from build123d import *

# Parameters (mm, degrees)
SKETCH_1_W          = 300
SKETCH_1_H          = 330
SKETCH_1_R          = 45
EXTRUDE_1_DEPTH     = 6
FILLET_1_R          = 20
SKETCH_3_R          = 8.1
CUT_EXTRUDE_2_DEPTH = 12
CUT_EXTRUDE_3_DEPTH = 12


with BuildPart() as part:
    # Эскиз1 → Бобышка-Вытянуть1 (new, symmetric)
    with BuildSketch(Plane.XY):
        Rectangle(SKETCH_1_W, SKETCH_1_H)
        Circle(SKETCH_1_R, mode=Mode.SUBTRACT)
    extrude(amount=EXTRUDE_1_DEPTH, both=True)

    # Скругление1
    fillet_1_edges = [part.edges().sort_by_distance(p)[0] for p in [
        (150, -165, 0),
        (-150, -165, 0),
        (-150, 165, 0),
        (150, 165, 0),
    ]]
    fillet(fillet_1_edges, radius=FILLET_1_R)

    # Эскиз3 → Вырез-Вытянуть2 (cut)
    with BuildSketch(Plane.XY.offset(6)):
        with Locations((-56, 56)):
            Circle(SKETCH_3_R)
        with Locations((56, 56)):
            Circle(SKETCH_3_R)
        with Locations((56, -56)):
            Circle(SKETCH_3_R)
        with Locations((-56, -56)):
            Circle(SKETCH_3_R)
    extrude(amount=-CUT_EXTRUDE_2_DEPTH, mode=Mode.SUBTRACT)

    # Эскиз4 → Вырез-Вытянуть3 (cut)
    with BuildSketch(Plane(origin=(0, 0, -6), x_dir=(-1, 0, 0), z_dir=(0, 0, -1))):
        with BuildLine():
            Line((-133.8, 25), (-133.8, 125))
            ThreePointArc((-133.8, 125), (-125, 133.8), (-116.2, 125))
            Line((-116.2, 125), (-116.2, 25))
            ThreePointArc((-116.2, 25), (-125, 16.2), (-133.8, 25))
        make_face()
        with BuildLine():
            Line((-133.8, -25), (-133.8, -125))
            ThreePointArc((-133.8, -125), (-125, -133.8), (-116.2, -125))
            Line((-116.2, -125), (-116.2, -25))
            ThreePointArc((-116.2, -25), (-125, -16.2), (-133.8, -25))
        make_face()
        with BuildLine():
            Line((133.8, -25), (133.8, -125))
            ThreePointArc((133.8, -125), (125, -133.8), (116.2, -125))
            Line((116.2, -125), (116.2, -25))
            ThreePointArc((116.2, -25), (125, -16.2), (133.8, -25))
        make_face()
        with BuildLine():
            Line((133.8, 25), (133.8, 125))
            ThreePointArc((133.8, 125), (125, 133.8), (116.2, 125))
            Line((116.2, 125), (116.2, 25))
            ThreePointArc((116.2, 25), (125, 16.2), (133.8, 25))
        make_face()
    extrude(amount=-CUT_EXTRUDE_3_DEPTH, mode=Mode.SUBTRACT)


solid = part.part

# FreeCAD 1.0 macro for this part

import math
import FreeCAD as App
import Part
import Sketcher

V = App.Vector
Q = App.Units.Quantity


def edges_at(feature, points):
    """Names of the edges that pass closest to the given points."""
    edges = feature.Shape.Edges
    near = lambda p: min(range(len(edges)), key=lambda i: edges[i].distToShape(Part.Vertex(*p))[0])
    return sorted({f"Edge{near(p) + 1}" for p in points})

doc = App.newDocument("Part")
body = doc.addObject("PartDesign::Body", "Body")

sketch1 = doc.addObject("Sketcher::SketchObject", "Sketch")
body.addObject(sketch1)
sketch1.AttachmentSupport = (doc.XY_Plane, [""])
sketch1.MapMode = "FlatFace"
sketch1.addGeometry([
    Part.LineSegment(V(-150, 165, 0), V(-150, -165, 0)),
    Part.LineSegment(V(-150, -165, 0), V(150, -165, 0)),
    Part.LineSegment(V(150, -165, 0), V(150, 165, 0)),
    Part.LineSegment(V(150, 165, 0), V(-150, 165, 0)),
    Part.Circle(V(0, 0, 0), V(0, 0, 1), 45),
], False)
sketch1.addConstraint([
    Sketcher.Constraint("Coincident", 0, 2, 1, 1),
    Sketcher.Constraint("Coincident", 1, 2, 2, 1),
    Sketcher.Constraint("Coincident", 2, 2, 3, 1),
    Sketcher.Constraint("Coincident", 3, 2, 0, 1),
    Sketcher.Constraint("Vertical", 0),
    Sketcher.Constraint("Horizontal", 1),
    Sketcher.Constraint("Vertical", 2),
    Sketcher.Constraint("Horizontal", 3),
    Sketcher.Constraint("Coincident", 4, 3, -1, 1),
    Sketcher.Constraint("Symmetric", 0, 2, 2, 2, -1, 1),
    Sketcher.Constraint("Diameter", 4, Q("90 mm")),
    Sketcher.Constraint("DistanceX", 1, 1, 1, 2, Q("300 mm")),
    Sketcher.Constraint("DistanceY", 0, 2, 0, 1, Q("330 mm")),
])
pad1 = doc.addObject("PartDesign::Pad", "Pad")
body.addObject(pad1)
pad1.Profile = sketch1
pad1.Length = 12
pad1.Midplane = True
doc.recompute()

fillet = doc.addObject("PartDesign::Fillet", "Fillet")
body.addObject(fillet)
fillet.Base = (pad1, edges_at(pad1, [
    (150, -165, 0),
    (-150, -165, 0),
    (-150, 165, 0),
    (150, 165, 0),
]))
fillet.Radius = 20

sketch2 = doc.addObject("Sketcher::SketchObject", "Sketch001")
body.addObject(sketch2)
sketch2.AttachmentSupport = (doc.XY_Plane, [""])
sketch2.MapMode = "FlatFace"
sketch2.AttachmentOffset = App.Placement(V(0, 0, 6), App.Rotation())
sketch2.addGeometry([
    Part.Circle(V(-56, 56, 0), V(0, 0, 1), 8),
    Part.Circle(V(56, 56, 0), V(0, 0, 1), 8),
    Part.Circle(V(56, -56, 0), V(0, 0, 1), 8),
    Part.Circle(V(-56, -56, 0), V(0, 0, 1), 8),
], False)
sketch2.addConstraint([
    Sketcher.Constraint("Equal", 0, 1),
    Sketcher.Constraint("Equal", 1, 2),
    Sketcher.Constraint("Equal", 2, 3),
    Sketcher.Constraint("Symmetric", 0, 3, 2, 3, -1, 1),
    Sketcher.Constraint("Symmetric", 1, 3, 3, 3, -1, 1),
    Sketcher.Constraint("Symmetric", 0, 3, 1, 3, -2),
    Sketcher.Constraint("Diameter", 0, Q("16.2 mm")),
    Sketcher.Constraint("DistanceX", 0, 3, -1, 1, Q("56 mm")),
    Sketcher.Constraint("DistanceY", -1, 1, 0, 3, Q("56 mm")),
])
pocket1 = doc.addObject("PartDesign::Pocket", "Pocket")
body.addObject(pocket1)
pocket1.Profile = sketch2
pocket1.Length = 12

sketch3 = doc.addObject("Sketcher::SketchObject", "Sketch002")
body.addObject(sketch3)
sketch3.AttachmentSupport = (doc.XY_Plane, [""])
sketch3.MapMode = "FlatFace"
sketch3.AttachmentOffset = App.Placement(V(0, 0, -6), App.Rotation())
sketch3.addGeometry([
    Part.LineSegment(V(134, 125, 0), V(134, 25, 0)),
    Part.ArcOfCircle(Part.Circle(V(125, 25, 0), V(0, 0, 1), 9), math.radians(180), math.radians(360)),
    Part.LineSegment(V(116, 25, 0), V(116, 125, 0)),
    Part.ArcOfCircle(Part.Circle(V(125, 125, 0), V(0, 0, 1), 9), math.radians(0), math.radians(180)),
    Part.LineSegment(V(134, -25, 0), V(134, -125, 0)),
    Part.ArcOfCircle(Part.Circle(V(125, -125, 0), V(0, 0, 1), 9), math.radians(180), math.radians(360)),
    Part.LineSegment(V(116, -125, 0), V(116, -25, 0)),
    Part.ArcOfCircle(Part.Circle(V(125, -25, 0), V(0, 0, 1), 9), math.radians(0), math.radians(180)),
    Part.LineSegment(V(-134, -125, 0), V(-134, -25, 0)),
    Part.ArcOfCircle(Part.Circle(V(-125, -25, 0), V(0, 0, 1), 9), math.radians(0), math.radians(180)),
    Part.LineSegment(V(-116, -25, 0), V(-116, -125, 0)),
    Part.ArcOfCircle(Part.Circle(V(-125, -125, 0), V(0, 0, 1), 9), math.radians(180), math.radians(360)),
    Part.LineSegment(V(-134, 25, 0), V(-134, 125, 0)),
    Part.ArcOfCircle(Part.Circle(V(-125, 125, 0), V(0, 0, 1), 9), math.radians(0), math.radians(180)),
    Part.LineSegment(V(-116, 125, 0), V(-116, 25, 0)),
    Part.ArcOfCircle(Part.Circle(V(-125, 25, 0), V(0, 0, 1), 9), math.radians(180), math.radians(360)),
], False)
sketch3.addConstraint([
    Sketcher.Constraint("Tangent", 0, 2, 1, 2),
    Sketcher.Constraint("Tangent", 1, 1, 2, 1),
    Sketcher.Constraint("Tangent", 2, 2, 3, 2),
    Sketcher.Constraint("Tangent", 3, 1, 0, 1),
    Sketcher.Constraint("Tangent", 4, 2, 5, 2),
    Sketcher.Constraint("Tangent", 5, 1, 6, 1),
    Sketcher.Constraint("Tangent", 6, 2, 7, 2),
    Sketcher.Constraint("Tangent", 7, 1, 4, 1),
    Sketcher.Constraint("Tangent", 8, 2, 9, 2),
    Sketcher.Constraint("Tangent", 9, 1, 10, 1),
    Sketcher.Constraint("Tangent", 10, 2, 11, 2),
    Sketcher.Constraint("Tangent", 11, 1, 8, 1),
    Sketcher.Constraint("Tangent", 12, 2, 13, 2),
    Sketcher.Constraint("Tangent", 13, 1, 14, 1),
    Sketcher.Constraint("Tangent", 14, 2, 15, 2),
    Sketcher.Constraint("Tangent", 15, 1, 12, 1),
    Sketcher.Constraint("Vertical", 0),
    Sketcher.Constraint("Vertical", 2),
    Sketcher.Constraint("Vertical", 4),
    Sketcher.Constraint("Vertical", 6),
    Sketcher.Constraint("Vertical", 8),
    Sketcher.Constraint("Vertical", 10),
    Sketcher.Constraint("Vertical", 12),
    Sketcher.Constraint("Vertical", 14),
    Sketcher.Constraint("Equal", 3, 5),
    Sketcher.Constraint("Equal", 7, 9),
    Sketcher.Constraint("Equal", 11, 13),
    Sketcher.Constraint("Symmetric", 1, 3, 9, 3, -1, 1),
    Sketcher.Constraint("Symmetric", 5, 3, 13, 3, -1, 1),
    Sketcher.Constraint("Symmetric", 7, 3, 9, 3, -2),
    Sketcher.Constraint("Horizontal", 5, 3, 11, 3),
    Sketcher.Constraint("Horizontal", 3, 3, 13, 3),
    Sketcher.Constraint("Horizontal", 1, 3, 15, 3),
    Sketcher.Constraint("Radius", 1, Q("8.8 mm")),
    Sketcher.Constraint("DistanceY", 0, 2, 0, 1, Q("100 mm")),
    Sketcher.Constraint("DistanceX", -1, 1, 1, 3, Q("125 mm")),
    Sketcher.Constraint("DistanceY", -1, 1, 1, 3, Q("25 mm")),
])
pocket2 = doc.addObject("PartDesign::Pocket", "Pocket001")
body.addObject(pocket2)
pocket2.Profile = sketch3
pocket2.Length = 12
pocket2.Reversed = True

doc.recompute()
